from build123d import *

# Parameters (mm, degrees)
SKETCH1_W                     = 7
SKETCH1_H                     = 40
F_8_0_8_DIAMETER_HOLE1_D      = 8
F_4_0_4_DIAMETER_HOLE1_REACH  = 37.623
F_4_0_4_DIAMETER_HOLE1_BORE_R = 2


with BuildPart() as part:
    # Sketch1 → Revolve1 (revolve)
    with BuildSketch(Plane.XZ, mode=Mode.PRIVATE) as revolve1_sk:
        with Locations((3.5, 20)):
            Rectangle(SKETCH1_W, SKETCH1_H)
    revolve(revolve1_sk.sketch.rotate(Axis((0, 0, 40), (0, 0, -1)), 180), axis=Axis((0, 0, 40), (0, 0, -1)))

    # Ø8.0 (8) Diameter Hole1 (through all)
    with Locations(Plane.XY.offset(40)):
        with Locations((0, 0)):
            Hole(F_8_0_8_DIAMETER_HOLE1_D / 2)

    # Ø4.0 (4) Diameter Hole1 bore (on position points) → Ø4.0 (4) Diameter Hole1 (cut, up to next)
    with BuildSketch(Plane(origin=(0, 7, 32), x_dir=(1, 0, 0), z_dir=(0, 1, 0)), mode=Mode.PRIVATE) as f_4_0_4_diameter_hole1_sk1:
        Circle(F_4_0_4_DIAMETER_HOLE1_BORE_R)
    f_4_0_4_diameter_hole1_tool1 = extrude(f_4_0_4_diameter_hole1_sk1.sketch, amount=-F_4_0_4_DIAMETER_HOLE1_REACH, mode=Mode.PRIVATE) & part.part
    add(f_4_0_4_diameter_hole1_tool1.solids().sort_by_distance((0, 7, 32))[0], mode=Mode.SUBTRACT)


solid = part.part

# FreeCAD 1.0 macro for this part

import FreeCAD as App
import Part
import Sketcher

doc = App.newDocument("Part")
body = doc.addObject("PartDesign::Body", "Body")

# Sketch on XZ plane
sketch1 = doc.addObject("Sketcher::SketchObject", "Sketch")
body.addObject(sketch1)
sketch1.AttachmentSupport = (doc.XZ_Plane, [""])
sketch1.MapMode = "FlatFace"
sketch1.addGeometry(Part.LineSegment(App.Vector(0, 40, 0), App.Vector(0, 0, 0)), False)
sketch1.addGeometry(Part.LineSegment(App.Vector(0, 0, 0), App.Vector(7, 0, 0)), False)
sketch1.addGeometry(Part.LineSegment(App.Vector(7, 0, 0), App.Vector(7, 40, 0)), False)
sketch1.addGeometry(Part.LineSegment(App.Vector(7, 40, 0), App.Vector(0, 40, 0)), False)
sketch1.addConstraint(Sketcher.Constraint("Coincident", 0, 2, 1, 1))
sketch1.addConstraint(Sketcher.Constraint("Coincident", 1, 2, 2, 1))
sketch1.addConstraint(Sketcher.Constraint("Coincident", 2, 2, 3, 1))
sketch1.addConstraint(Sketcher.Constraint("Coincident", 3, 2, 0, 1))
sketch1.addConstraint(Sketcher.Constraint("Vertical", 0))
sketch1.addConstraint(Sketcher.Constraint("Horizontal", 1))
sketch1.addConstraint(Sketcher.Constraint("Vertical", 2))
sketch1.addConstraint(Sketcher.Constraint("Horizontal", 3))
sketch1.addConstraint(Sketcher.Constraint("Coincident", 0, 2, -1, 1))
sketch1.addConstraint(Sketcher.Constraint("DistanceX", 1, 1, 1, 2, 7.0))
sketch1.addConstraint(Sketcher.Constraint("DistanceY", 0, 2, 0, 1, 40.0))
revolution = doc.addObject("PartDesign::Revolution", "Revolution")
body.addObject(revolution)
revolution.Profile = sketch1
revolution.ReferenceAxis = (sketch1, ["V_Axis"])
revolution.Angle = 360

# Sketch on XY plane
sketch2 = doc.addObject("Sketcher::SketchObject", "Sketch001")
body.addObject(sketch2)
sketch2.AttachmentSupport = (doc.XY_Plane, [""])
sketch2.MapMode = "FlatFace"
sketch2.AttachmentOffset = App.Placement(App.Vector(0, 0, 40), App.Rotation())
sketch2.addGeometry(Part.Circle(App.Vector(0, 0, 0), App.Vector(0, 0, 1), 4), False)
sketch2.addConstraint(Sketcher.Constraint("Coincident", 0, 3, -1, 1))
sketch2.addConstraint(Sketcher.Constraint("Diameter", 0, 8.0))
doc.recompute()
hole = doc.addObject("PartDesign::Hole", "Hole")
body.addObject(hole)
hole.Profile = sketch2
hole.ThreadType = "None"
hole.Diameter = 8
hole.DepthType = "ThroughAll"

# Sketch on XZ plane
sketch3 = doc.addObject("Sketcher::SketchObject", "Sketch002")
body.addObject(sketch3)
sketch3.AttachmentSupport = (doc.XZ_Plane, [""])
sketch3.MapMode = "FlatFace"
sketch3.AttachmentOffset = App.Placement(App.Vector(0, 0, -7), App.Rotation())
sketch3.addGeometry(Part.Circle(App.Vector(0, 32, 0), App.Vector(0, 0, 1), 2), False)
sketch3.addConstraint(Sketcher.Constraint("PointOnObject", 0, 3, -2))
sketch3.addConstraint(Sketcher.Constraint("Diameter", 0, 4.0))
sketch3.addConstraint(Sketcher.Constraint("DistanceY", -1, 1, 0, 3, 32.0))
pocket1 = doc.addObject("PartDesign::Pocket", "Pocket")
body.addObject(pocket1)
pocket1.Profile = sketch3
pocket1.Type = "UpToFirst"
pocket1.Reversed = True

doc.recompute()
